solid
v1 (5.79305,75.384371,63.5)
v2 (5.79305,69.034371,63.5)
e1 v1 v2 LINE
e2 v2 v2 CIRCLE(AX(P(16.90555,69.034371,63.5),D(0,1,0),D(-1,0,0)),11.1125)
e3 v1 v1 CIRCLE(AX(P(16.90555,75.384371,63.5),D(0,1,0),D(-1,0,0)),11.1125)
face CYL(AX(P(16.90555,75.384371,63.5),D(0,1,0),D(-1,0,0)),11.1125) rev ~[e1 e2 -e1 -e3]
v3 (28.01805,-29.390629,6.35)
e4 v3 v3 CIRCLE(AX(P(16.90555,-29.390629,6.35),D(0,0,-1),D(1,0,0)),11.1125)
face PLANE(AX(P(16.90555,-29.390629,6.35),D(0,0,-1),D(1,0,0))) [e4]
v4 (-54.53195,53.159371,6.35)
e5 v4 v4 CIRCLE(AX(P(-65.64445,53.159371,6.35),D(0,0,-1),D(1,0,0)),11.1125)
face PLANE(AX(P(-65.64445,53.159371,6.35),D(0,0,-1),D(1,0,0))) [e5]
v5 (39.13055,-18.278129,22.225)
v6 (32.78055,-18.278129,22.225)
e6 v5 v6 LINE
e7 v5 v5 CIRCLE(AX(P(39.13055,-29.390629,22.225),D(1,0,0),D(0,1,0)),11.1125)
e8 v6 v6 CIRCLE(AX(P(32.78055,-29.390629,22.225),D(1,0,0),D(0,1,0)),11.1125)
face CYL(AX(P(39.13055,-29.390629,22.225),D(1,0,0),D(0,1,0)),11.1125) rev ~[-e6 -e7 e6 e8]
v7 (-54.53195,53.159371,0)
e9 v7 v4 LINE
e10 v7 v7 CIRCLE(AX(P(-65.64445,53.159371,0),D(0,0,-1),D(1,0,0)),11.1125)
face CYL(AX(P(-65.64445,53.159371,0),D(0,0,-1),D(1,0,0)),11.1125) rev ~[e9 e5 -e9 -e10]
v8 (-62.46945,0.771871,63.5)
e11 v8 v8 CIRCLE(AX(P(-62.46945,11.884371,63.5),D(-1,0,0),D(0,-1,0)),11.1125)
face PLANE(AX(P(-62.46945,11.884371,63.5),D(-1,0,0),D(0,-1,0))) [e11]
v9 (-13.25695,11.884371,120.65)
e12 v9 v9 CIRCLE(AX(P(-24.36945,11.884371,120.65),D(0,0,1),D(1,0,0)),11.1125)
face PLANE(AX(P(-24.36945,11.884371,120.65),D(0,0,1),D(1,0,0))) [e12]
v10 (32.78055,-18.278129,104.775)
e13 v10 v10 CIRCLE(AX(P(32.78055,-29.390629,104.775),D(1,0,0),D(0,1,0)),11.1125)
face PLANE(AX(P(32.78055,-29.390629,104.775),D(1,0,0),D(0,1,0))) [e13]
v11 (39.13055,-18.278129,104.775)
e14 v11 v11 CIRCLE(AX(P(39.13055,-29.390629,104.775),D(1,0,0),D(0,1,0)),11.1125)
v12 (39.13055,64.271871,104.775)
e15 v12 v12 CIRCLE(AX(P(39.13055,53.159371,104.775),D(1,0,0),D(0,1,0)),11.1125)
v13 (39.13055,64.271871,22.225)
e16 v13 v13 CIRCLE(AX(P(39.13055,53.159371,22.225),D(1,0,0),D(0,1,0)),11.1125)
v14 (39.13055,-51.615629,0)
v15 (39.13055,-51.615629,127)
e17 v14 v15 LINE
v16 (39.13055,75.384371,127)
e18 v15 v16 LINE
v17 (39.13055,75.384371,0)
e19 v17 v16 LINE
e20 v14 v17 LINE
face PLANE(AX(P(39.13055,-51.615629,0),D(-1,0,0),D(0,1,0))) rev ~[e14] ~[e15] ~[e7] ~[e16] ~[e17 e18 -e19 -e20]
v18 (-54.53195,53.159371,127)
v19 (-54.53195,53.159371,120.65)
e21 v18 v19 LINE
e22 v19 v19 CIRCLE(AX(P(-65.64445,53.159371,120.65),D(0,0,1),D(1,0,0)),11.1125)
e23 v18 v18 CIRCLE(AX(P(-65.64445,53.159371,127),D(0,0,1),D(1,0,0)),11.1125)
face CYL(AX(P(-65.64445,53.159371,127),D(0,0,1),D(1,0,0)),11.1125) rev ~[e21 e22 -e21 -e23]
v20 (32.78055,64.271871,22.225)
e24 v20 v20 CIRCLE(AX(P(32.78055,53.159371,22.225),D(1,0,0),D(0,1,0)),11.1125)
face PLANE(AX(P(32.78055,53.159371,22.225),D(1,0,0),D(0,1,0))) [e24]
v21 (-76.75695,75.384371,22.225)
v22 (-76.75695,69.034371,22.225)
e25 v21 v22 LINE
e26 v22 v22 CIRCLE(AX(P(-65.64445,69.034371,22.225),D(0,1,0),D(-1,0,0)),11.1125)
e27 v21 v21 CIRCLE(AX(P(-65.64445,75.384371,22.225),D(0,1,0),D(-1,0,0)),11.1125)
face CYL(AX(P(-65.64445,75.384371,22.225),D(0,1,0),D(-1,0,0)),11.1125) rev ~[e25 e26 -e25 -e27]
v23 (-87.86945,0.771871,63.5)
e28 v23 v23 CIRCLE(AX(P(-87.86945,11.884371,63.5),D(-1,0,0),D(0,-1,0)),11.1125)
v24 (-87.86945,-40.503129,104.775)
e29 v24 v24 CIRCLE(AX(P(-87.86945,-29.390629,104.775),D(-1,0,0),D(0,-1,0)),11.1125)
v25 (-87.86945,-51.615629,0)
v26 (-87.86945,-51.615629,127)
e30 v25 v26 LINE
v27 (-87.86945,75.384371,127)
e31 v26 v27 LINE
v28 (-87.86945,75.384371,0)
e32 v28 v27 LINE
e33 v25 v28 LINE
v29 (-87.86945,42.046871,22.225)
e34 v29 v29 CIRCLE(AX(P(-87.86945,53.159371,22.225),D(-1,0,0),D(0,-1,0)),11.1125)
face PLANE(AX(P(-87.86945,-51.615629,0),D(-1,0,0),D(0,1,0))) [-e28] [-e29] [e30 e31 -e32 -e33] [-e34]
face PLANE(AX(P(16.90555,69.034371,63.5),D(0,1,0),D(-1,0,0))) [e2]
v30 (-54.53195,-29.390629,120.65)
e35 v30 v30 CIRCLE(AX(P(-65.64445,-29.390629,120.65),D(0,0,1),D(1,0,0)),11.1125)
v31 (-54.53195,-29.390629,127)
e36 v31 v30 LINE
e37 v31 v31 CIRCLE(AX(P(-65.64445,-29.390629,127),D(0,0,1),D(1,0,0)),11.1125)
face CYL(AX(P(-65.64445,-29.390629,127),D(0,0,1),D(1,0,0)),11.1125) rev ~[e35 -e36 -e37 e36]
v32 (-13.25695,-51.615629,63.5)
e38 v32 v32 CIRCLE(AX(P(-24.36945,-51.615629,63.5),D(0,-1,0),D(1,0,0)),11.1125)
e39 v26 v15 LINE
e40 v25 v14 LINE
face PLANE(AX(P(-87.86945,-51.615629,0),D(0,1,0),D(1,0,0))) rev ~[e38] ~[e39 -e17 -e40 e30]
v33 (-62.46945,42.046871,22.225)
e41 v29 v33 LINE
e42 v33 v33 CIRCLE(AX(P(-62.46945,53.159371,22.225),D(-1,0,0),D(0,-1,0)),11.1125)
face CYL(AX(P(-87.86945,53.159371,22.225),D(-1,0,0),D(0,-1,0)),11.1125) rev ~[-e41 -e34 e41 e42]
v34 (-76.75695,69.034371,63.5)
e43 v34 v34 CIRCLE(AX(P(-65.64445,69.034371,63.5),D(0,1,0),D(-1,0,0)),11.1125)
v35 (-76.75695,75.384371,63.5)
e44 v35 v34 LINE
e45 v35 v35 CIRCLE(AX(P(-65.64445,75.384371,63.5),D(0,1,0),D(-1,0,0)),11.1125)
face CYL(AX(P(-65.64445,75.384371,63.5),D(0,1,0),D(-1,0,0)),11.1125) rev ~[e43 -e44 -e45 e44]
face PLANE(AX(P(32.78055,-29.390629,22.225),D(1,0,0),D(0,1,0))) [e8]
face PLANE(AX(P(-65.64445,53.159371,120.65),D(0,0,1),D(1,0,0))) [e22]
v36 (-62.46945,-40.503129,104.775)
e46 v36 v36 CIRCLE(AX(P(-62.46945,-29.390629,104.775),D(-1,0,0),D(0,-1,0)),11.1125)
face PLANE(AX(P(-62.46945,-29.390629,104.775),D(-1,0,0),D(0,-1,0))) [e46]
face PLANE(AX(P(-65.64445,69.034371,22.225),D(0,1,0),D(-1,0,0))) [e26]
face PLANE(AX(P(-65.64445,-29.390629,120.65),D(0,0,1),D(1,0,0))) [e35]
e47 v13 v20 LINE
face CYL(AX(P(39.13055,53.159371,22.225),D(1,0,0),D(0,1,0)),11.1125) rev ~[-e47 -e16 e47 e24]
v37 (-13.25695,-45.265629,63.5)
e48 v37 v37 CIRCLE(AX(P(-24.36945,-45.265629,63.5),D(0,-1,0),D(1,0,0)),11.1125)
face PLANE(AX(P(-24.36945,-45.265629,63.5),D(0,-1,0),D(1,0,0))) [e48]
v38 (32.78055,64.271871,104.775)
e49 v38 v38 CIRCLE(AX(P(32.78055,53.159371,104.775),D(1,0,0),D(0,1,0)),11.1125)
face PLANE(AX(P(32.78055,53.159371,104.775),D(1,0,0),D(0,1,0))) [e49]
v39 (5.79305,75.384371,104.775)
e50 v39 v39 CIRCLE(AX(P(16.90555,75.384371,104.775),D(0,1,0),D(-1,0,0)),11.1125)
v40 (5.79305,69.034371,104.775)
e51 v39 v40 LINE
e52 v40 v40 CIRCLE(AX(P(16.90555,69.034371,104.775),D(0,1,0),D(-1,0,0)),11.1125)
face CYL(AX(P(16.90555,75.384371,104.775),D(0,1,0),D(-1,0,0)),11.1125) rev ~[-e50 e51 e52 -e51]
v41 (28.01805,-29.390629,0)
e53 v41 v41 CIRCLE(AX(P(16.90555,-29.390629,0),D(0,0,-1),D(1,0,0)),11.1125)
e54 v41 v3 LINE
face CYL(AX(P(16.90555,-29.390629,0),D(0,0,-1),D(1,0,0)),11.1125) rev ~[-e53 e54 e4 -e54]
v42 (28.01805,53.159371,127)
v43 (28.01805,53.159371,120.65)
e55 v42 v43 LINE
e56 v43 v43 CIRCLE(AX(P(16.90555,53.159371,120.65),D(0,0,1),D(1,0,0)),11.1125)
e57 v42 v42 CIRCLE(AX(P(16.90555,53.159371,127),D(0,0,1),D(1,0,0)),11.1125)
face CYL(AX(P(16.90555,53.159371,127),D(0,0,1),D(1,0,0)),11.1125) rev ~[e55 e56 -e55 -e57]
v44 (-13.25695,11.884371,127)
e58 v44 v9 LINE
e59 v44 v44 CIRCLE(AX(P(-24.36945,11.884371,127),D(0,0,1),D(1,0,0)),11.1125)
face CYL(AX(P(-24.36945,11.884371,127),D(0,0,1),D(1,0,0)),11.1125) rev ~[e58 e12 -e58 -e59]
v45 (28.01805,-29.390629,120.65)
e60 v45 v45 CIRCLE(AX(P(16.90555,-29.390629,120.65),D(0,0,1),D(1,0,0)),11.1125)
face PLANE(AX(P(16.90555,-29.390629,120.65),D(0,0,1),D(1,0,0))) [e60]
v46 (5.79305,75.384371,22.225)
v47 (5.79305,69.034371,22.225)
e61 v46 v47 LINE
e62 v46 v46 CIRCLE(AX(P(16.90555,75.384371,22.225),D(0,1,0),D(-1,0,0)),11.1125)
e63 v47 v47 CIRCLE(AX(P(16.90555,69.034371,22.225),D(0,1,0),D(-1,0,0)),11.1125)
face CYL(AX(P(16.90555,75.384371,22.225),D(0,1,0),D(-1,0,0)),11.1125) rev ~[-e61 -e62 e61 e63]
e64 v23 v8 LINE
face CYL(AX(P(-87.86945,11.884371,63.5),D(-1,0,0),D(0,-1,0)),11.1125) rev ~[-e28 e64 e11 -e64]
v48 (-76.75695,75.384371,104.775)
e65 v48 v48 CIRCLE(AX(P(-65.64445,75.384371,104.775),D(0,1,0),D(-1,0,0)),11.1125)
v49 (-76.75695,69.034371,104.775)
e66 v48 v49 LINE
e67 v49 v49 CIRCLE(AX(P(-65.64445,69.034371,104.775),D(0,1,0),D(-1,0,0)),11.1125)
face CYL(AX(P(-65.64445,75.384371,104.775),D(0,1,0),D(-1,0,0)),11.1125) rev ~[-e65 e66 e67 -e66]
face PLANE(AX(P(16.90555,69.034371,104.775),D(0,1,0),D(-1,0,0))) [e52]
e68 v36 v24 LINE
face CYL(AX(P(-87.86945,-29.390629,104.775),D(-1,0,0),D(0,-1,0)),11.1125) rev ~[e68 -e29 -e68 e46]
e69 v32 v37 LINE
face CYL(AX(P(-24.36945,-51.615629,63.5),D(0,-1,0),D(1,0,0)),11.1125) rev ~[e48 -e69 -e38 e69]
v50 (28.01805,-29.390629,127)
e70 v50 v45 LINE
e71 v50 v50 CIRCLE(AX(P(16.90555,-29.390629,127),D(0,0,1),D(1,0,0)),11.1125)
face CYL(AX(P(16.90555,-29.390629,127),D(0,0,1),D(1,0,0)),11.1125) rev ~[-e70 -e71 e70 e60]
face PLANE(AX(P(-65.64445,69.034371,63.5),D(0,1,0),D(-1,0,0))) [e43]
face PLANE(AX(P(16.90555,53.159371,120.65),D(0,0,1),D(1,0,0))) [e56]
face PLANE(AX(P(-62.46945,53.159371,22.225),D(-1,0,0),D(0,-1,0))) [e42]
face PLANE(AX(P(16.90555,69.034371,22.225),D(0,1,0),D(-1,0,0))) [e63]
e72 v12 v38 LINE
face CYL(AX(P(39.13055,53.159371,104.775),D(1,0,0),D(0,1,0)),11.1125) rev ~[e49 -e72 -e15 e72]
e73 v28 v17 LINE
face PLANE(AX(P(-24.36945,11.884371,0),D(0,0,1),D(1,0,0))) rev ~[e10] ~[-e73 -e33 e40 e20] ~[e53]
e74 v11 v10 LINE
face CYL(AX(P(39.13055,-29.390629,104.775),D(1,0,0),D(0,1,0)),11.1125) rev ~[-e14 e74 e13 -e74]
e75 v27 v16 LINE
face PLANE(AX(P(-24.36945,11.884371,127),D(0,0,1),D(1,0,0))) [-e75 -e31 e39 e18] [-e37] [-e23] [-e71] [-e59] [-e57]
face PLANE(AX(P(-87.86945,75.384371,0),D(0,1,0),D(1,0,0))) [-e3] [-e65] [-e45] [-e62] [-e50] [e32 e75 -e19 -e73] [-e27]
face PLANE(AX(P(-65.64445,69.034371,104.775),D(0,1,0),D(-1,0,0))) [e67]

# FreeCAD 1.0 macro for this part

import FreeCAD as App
import Part
import Sketcher
from FreeCAD import Vector
Q = App.Units.Quantity


def add_polygon(sketch, points):
    """Adds a closed chain of lines whose ends are joined by coincident constraints."""
    first, n = sketch.GeometryCount, len(points)
    for a, b in zip(points, points[1:] + points[:1]):
        sketch.addGeometry(Part.LineSegment(App.Vector(*a, 0), App.Vector(*b, 0)), False)
    for i in range(n):
        sketch.addConstraint(Sketcher.Constraint("Coincident", first + i, 2, first + (i + 1) % n, 1))

doc = App.newDocument("Part")
body = doc.addObject("PartDesign::Body", "Body")

# Sketch on XY plane
sketch1 = body.newObject("Sketcher::SketchObject", "Sketch")
sketch1.AttachmentSupport = (doc.getObject("XY_Plane"), [""])
sketch1.MapMode = "FlatFace"
add_polygon(sketch1, [(-87.86945, 75.384371), (-87.86945, -51.615629), (39.13055, -51.615629), (39.13055, 75.384371)])  # lines 0-3
sketch1.addConstraint(Sketcher.Constraint("Vertical", 0))
sketch1.addConstraint(Sketcher.Constraint("Horizontal", 1))
sketch1.addConstraint(Sketcher.Constraint("Vertical", 2))
sketch1.addConstraint(Sketcher.Constraint("Horizontal", 3))
sketch1.addConstraint(Sketcher.Constraint("Equal", 3, 0))
sketch1.addConstraint(Sketcher.Constraint("DistanceX", 1, 1, 1, 2, Q("5 in")))
sketch1.addConstraint(Sketcher.Constraint("DistanceX", 0, 2, -1, 1, 87.86945))
sketch1.addConstraint(Sketcher.Constraint("DistanceY", 0, 2, -1, 1, 51.615629))
pad1 = body.newObject("PartDesign::Pad", "Pad")
pad1.Profile = sketch1
pad1.Length = Q("5 in")

# Sketch on XZ plane
sketch2 = body.newObject("Sketcher::SketchObject", "Sketch001")
sketch2.AttachmentSupport = (doc.getObject("XZ_Plane"), [""])
sketch2.MapMode = "FlatFace"
sketch2.AttachmentOffset = App.Placement(Vector(0, 0, 51.615629), App.Rotation())
sketch2.addGeometry(Part.Circle(Vector(-24.36945, 63.5, 0), Vector(0, 0, 1), 11.1125), False)
sketch2.addConstraint(Sketcher.Constraint("Diameter", 0, Q("0.875 in")))
sketch2.addConstraint(Sketcher.Constraint("DistanceY", -1, 1, 0, 3, Q("2.5 in")))
sketch2.addConstraint(Sketcher.Constraint("DistanceX", 0, 3, -1, 1, 24.36945))
pocket1 = body.newObject("PartDesign::Pocket", "Pocket")
pocket1.Profile = sketch2
pocket1.Length = Q("0.25 in")

# Sketch on YZ plane
sketch3 = body.newObject("Sketcher::SketchObject", "Sketch002")
sketch3.AttachmentSupport = (doc.getObject("YZ_Plane"), [""])
sketch3.MapMode = "FlatFace"
sketch3.AttachmentOffset = App.Placement(Vector(0, 0, -87.86945), App.Rotation())
sketch3.addGeometry(Part.Circle(Vector(-29.390629, 104.775, 0), Vector(0, 0, 1), 11.1125), False)
sketch3.addConstraint(Sketcher.Constraint("Diameter", 0, Q("0.875 in")))
sketch3.addConstraint(Sketcher.Constraint("DistanceY", -1, 1, 0, 3, Q("4.125 in")))
sketch3.addConstraint(Sketcher.Constraint("DistanceX", 0, 3, -1, 1, 29.390629))
pocket2 = body.newObject("PartDesign::Pocket", "Pocket001")
pocket2.Profile = sketch3
pocket2.Length = Q("0.25 in")
pocket2.Reversed = True

# Sketch on YZ plane
sketch4 = body.newObject("Sketcher::SketchObject", "Sketch003")
sketch4.AttachmentSupport = (doc.getObject("YZ_Plane"), [""])
sketch4.MapMode = "FlatFace"
sketch4.AttachmentOffset = App.Placement(Vector(0, 0, -87.86945), App.Rotation())
sketch4.addGeometry(Part.Circle(Vector(11.884371, 63.5, 0), Vector(0, 0, 1), 11.1125), False)
sketch4.addGeometry(Part.Circle(Vector(-29.390629, 104.775, 0), Vector(0, 0, 1), 11.1125), False)
sketch4.addGeometry(Part.Circle(Vector(53.159371, 22.225, 0), Vector(0, 0, 1), 11.1125), False)
sketch4.addConstraint(Sketcher.Constraint("Equal", 0, 1))
sketch4.addConstraint(Sketcher.Constraint("Equal", 1, 2))
sketch4.addConstraint(Sketcher.Constraint("Diameter", 0, Q("0.875 in")))
sketch4.addConstraint(Sketcher.Constraint("DistanceY", -1, 1, 0, 3, Q("2.5 in")))
sketch4.addConstraint(Sketcher.Constraint("DistanceX", 1, 3, 2, 3, Q("3.25 in")))
sketch4.addConstraint(Sketcher.Constraint("DistanceY", 2, 3, 1, 3, Q("3.25 in")))
sketch4.addConstraint(Sketcher.Constraint("DistanceY", -1, 1, 1, 3, Q("4.125 in")))
sketch4.addConstraint(Sketcher.Constraint("DistanceX", 1, 3, 0, 3, Q("1.625 in")))
sketch4.addConstraint(Sketcher.Constraint("DistanceX", -1, 1, 0, 3, 11.884371))
pocket3 = body.newObject("PartDesign::Pocket", "Pocket002")
pocket3.Profile = sketch4
pocket3.Length = Q("1 in")
pocket3.Reversed = True

# Sketch on XY plane
sketch5 = body.newObject("Sketcher::SketchObject", "Sketch004")
sketch5.AttachmentSupport = (doc.getObject("XY_Plane"), [""])
sketch5.MapMode = "FlatFace"
sketch5.AttachmentOffset = App.Placement(Vector(0, 0, 5 * 25.4), App.Rotation())
sketch5.addGeometry(Part.Circle(Vector(16.90555, -29.390629, 0), Vector(0, 0, 1), 11.1125), False)
sketch5.addGeometry(Part.Circle(Vector(16.90555, 53.159371, 0), Vector(0, 0, 1), 11.1125), False)
sketch5.addGeometry(Part.Circle(Vector(-65.64445, 53.159371, 0), Vector(0, 0, 1), 11.1125), False)
sketch5.addGeometry(Part.Circle(Vector(-65.64445, -29.390629, 0), Vector(0, 0, 1), 11.1125), False)
sketch5.addConstraint(Sketcher.Constraint("Equal", 0, 1))
sketch5.addConstraint(Sketcher.Constraint("Equal", 1, 2))
sketch5.addConstraint(Sketcher.Constraint("Equal", 2, 3))
sketch5.addConstraint(Sketcher.Constraint("Horizontal", 1, 3, 2, 3))
sketch5.addConstraint(Sketcher.Constraint("Horizontal", 0, 3, 3, 3))
sketch5.addConstraint(Sketcher.Constraint("Vertical", 0, 3, 1, 3))
sketch5.addConstraint(Sketcher.Constraint("Vertical", 2, 3, 3, 3))
sketch5.addConstraint(Sketcher.Constraint("Diameter", 0, Q("0.875 in")))
sketch5.addConstraint(Sketcher.Constraint("DistanceY", 0, 3, 1, 3, Q("3.25 in")))
sketch5.addConstraint(Sketcher.Constraint("DistanceX", 2, 3, 1, 3, Q("3.25 in")))
sketch5.addConstraint(Sketcher.Constraint("DistanceX", -1, 1, 0, 3, 16.90555))
sketch5.addConstraint(Sketcher.Constraint("DistanceY", 0, 3, -1, 1, 29.390629))
pocket4 = body.newObject("PartDesign::Pocket", "Pocket003")
pocket4.Profile = sketch5
pocket4.Length = Q("0.25 in")

# Sketch on XY plane
sketch6 = body.newObject("Sketcher::SketchObject", "Sketch005")
sketch6.AttachmentSupport = (doc.getObject("XY_Plane"), [""])
sketch6.MapMode = "FlatFace"
sketch6.AttachmentOffset = App.Placement(Vector(0, 0, 5 * 25.4), App.Rotation())
sketch6.addGeometry(Part.Circle(Vector(-24.36945, 11.884371, 0), Vector(0, 0, 1), 11.1125), False)
sketch6.addConstraint(Sketcher.Constraint("Diameter", 0, Q("0.875 in")))
sketch6.addConstraint(Sketcher.Constraint("DistanceX", 0, 3, -1, 1, 24.36945))
sketch6.addConstraint(Sketcher.Constraint("DistanceY", -1, 1, 0, 3, 11.884371))
pocket5 = body.newObject("PartDesign::Pocket", "Pocket004")
pocket5.Profile = sketch6
pocket5.Length = Q("0.25 in")

# Sketch on XZ plane
sketch7 = body.newObject("Sketcher::SketchObject", "Sketch006")
sketch7.AttachmentSupport = (doc.getObject("XZ_Plane"), [""])
sketch7.MapMode = "FlatFace"
sketch7.AttachmentOffset = App.Placement(Vector(0, 0, -75.384371), App.Rotation())
sketch7.addGeometry(Part.Circle(Vector(16.90555, 104.775, 0), Vector(0, 0, 1), 11.1125), False)
sketch7.addGeometry(Part.Circle(Vector(16.90555, 63.5, 0), Vector(0, 0, 1), 11.1125), False)
sketch7.addGeometry(Part.Circle(Vector(16.90555, 22.225, 0), Vector(0, 0, 1), 11.1125), False)
sketch7.addGeometry(Part.Circle(Vector(-65.64445, 22.225, 0), Vector(0, 0, 1), 11.1125), False)
sketch7.addGeometry(Part.Circle(Vector(-65.64445, 63.5, 0), Vector(0, 0, 1), 11.1125), False)
sketch7.addGeometry(Part.Circle(Vector(-65.64445, 104.775, 0), Vector(0, 0, 1), 11.1125), False)
sketch7.addConstraint(Sketcher.Constraint("Equal", 0, 1))
sketch7.addConstraint(Sketcher.Constraint("Equal", 1, 2))
sketch7.addConstraint(Sketcher.Constraint("Equal", 2, 3))
sketch7.addConstraint(Sketcher.Constraint("Equal", 3, 4))
sketch7.addConstraint(Sketcher.Constraint("Equal", 4, 5))
sketch7.addConstraint(Sketcher.Constraint("Horizontal", 2, 3, 3, 3))
sketch7.addConstraint(Sketcher.Constraint("Horizontal", 1, 3, 4, 3))
sketch7.addConstraint(Sketcher.Constraint("Horizontal", 0, 3, 5, 3))
sketch7.addConstraint(Sketcher.Constraint("Vertical", 0, 3, 1, 3))
sketch7.addConstraint(Sketcher.Constraint("Vertical", 1, 3, 2, 3))
sketch7.addConstraint(Sketcher.Constraint("Vertical", 3, 3, 4, 3))
sketch7.addConstraint(Sketcher.Constraint("Vertical", 4, 3, 5, 3))
sketch7.addConstraint(Sketcher.Constraint("Diameter", 0, Q("0.875 in")))
sketch7.addConstraint(Sketcher.Constraint("DistanceY", -1, 1, 1, 3, Q("2.5 in")))
sketch7.addConstraint(Sketcher.Constraint("DistanceY", 2, 3, 0, 3, Q("3.25 in")))
sketch7.addConstraint(Sketcher.Constraint("DistanceX", 3, 3, 2, 3, Q("3.25 in")))
sketch7.addConstraint(Sketcher.Constraint("DistanceY", -1, 1, 0, 3, Q("4.125 in")))
sketch7.addConstraint(Sketcher.Constraint("DistanceX", -1, 1, 0, 3, 16.90555))
pocket6 = body.newObject("PartDesign::Pocket", "Pocket005")
pocket6.Profile = sketch7
pocket6.Length = Q("0.25 in")
pocket6.Reversed = True

# Sketch on YZ plane
sketch8 = body.newObject("Sketcher::SketchObject", "Sketch007")
sketch8.AttachmentSupport = (doc.getObject("YZ_Plane"), [""])
sketch8.MapMode = "FlatFace"
sketch8.AttachmentOffset = App.Placement(Vector(0, 0, 39.13055), App.Rotation())
sketch8.addGeometry(Part.Circle(Vector(53.159371, 104.775, 0), Vector(0, 0, 1), 11.1125), False)
sketch8.addGeometry(Part.Circle(Vector(53.159371, 22.225, 0), Vector(0, 0, 1), 11.1125), False)
sketch8.addGeometry(Part.Circle(Vector(-29.390629, 22.225, 0), Vector(0, 0, 1), 11.1125), False)
sketch8.addGeometry(Part.Circle(Vector(-29.390629, 104.775, 0), Vector(0, 0, 1), 11.1125), False)
sketch8.addConstraint(Sketcher.Constraint("Equal", 0, 1))
sketch8.addConstraint(Sketcher.Constraint("Equal", 1, 2))
sketch8.addConstraint(Sketcher.Constraint("Equal", 2, 3))
sketch8.addConstraint(Sketcher.Constraint("Horizontal", 1, 3, 2, 3))
sketch8.addConstraint(Sketcher.Constraint("Horizontal", 0, 3, 3, 3))
sketch8.addConstraint(Sketcher.Constraint("Vertical", 0, 3, 1, 3))
sketch8.addConstraint(Sketcher.Constraint("Vertical", 2, 3, 3, 3))
sketch8.addConstraint(Sketcher.Constraint("Diameter", 0, Q("0.875 in")))
sketch8.addConstraint(Sketcher.Constraint("DistanceY", 1, 3, 0, 3, Q("3.25 in")))
sketch8.addConstraint(Sketcher.Constraint("DistanceX", 2, 3, 1, 3, Q("3.25 in")))
sketch8.addConstraint(Sketcher.Constraint("DistanceY", -1, 1, 0, 3, Q("4.125 in")))
sketch8.addConstraint(Sketcher.Constraint("DistanceX", -1, 1, 0, 3, 53.159371))
pocket7 = body.newObject("PartDesign::Pocket", "Pocket006")
pocket7.Profile = sketch8
pocket7.Length = Q("0.25 in")

# Sketch on XY plane
sketch9 = body.newObject("Sketcher::SketchObject", "Sketch008")
sketch9.AttachmentSupport = (doc.getObject("XY_Plane"), [""])
sketch9.MapMode = "FlatFace"
sketch9.addGeometry(Part.Circle(Vector(-65.64445, 53.159371, 0), Vector(0, 0, 1), 11.1125), False)
sketch9.addGeometry(Part.Circle(Vector(16.90555, -29.390629, 0), Vector(0, 0, 1), 11.1125), False)
sketch9.addConstraint(Sketcher.Constraint("Equal", 0, 1))
sketch9.addConstraint(Sketcher.Constraint("Diameter", 0, Q("0.875 in")))
sketch9.addConstraint(Sketcher.Constraint("DistanceX", 0, 3, 1, 3, Q("3.25 in")))
sketch9.addConstraint(Sketcher.Constraint("DistanceY", 1, 3, 0, 3, Q("3.25 in")))
sketch9.addConstraint(Sketcher.Constraint("DistanceX", 0, 3, -1, 1, 65.64445))
sketch9.addConstraint(Sketcher.Constraint("DistanceY", -1, 1, 0, 3, 53.159371))
pocket8 = body.newObject("PartDesign::Pocket", "Pocket007")
pocket8.Profile = sketch9
pocket8.Length = Q("0.25 in")
pocket8.Reversed = True

doc.recompute()
